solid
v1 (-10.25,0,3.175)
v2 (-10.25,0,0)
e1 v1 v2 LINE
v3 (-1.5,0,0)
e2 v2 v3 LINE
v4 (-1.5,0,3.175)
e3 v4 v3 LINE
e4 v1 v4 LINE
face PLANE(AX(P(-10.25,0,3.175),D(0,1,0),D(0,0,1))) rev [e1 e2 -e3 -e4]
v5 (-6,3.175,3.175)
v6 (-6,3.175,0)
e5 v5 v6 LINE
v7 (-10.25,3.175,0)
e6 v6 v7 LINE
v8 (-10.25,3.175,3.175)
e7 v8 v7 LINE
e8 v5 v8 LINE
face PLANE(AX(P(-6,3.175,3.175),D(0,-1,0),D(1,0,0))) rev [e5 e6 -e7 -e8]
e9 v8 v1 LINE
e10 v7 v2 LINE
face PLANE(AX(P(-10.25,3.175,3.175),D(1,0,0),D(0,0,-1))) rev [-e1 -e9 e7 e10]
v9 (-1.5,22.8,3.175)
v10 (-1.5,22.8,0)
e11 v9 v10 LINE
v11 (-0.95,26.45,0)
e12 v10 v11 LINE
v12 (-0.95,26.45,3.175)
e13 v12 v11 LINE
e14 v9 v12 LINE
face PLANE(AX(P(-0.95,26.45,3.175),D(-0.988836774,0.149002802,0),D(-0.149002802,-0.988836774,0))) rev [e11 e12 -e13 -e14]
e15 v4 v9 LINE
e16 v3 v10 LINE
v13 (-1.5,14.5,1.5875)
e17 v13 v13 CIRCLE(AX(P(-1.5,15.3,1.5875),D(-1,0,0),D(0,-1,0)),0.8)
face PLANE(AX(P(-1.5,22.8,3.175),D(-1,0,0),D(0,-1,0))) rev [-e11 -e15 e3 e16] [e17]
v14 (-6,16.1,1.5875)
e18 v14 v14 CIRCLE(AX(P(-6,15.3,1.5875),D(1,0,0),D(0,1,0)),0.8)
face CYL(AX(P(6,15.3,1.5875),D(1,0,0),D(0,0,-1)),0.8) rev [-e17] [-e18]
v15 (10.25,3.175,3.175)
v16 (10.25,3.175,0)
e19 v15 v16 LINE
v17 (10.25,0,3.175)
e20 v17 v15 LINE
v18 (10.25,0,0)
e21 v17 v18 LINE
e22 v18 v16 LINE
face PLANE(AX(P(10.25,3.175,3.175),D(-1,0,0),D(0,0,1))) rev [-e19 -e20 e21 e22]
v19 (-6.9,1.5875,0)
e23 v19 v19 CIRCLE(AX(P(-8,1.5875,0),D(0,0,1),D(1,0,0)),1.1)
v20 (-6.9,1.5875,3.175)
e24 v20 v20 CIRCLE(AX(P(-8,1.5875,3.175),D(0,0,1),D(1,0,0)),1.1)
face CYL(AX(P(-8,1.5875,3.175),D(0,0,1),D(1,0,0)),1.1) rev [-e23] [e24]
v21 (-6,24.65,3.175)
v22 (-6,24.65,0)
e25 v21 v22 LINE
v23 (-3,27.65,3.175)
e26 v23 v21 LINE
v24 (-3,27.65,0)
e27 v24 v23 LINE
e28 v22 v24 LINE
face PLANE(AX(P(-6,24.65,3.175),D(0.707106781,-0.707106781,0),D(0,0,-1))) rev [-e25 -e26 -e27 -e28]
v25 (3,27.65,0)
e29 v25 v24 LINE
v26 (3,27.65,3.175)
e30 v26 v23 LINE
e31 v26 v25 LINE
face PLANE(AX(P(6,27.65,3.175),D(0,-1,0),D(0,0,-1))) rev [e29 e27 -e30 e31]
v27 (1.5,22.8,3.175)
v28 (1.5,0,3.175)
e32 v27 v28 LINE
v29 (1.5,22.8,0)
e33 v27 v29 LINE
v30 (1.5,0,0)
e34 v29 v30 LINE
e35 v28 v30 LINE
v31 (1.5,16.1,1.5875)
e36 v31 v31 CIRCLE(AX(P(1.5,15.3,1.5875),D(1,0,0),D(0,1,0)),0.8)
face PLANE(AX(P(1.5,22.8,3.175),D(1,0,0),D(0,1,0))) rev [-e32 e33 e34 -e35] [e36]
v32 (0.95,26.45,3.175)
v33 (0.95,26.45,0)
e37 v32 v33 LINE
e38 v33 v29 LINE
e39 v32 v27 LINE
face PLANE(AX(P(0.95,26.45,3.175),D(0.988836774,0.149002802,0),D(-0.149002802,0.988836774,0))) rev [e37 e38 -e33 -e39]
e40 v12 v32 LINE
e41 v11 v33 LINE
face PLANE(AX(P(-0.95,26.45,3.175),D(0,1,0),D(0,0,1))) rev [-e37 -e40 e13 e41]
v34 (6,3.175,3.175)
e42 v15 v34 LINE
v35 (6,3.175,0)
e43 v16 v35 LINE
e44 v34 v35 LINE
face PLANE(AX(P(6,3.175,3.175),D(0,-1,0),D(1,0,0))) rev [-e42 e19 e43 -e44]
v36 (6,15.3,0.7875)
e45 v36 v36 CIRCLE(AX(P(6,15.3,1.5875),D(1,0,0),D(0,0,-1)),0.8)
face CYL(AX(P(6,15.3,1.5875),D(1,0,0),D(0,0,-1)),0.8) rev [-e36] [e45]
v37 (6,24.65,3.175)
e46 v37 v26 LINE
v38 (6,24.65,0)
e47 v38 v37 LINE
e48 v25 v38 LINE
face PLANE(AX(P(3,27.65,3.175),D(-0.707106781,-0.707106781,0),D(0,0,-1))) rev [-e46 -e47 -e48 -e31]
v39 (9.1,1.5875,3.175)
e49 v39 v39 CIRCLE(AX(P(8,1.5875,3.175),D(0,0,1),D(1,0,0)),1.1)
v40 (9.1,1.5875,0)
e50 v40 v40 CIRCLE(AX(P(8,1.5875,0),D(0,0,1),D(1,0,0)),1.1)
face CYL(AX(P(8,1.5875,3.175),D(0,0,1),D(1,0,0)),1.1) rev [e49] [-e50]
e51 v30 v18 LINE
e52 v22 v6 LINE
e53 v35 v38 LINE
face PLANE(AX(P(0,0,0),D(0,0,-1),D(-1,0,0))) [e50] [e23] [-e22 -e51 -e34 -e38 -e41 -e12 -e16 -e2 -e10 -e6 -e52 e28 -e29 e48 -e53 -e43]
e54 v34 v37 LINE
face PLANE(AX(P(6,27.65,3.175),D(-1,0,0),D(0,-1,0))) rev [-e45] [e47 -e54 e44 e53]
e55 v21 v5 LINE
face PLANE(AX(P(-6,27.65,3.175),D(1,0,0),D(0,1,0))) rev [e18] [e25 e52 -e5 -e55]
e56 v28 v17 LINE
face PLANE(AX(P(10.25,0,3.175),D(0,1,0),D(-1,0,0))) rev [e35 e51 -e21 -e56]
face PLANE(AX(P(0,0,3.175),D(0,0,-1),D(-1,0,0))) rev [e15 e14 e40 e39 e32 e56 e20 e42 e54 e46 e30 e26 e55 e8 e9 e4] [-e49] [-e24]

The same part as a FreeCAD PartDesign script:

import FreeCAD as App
import Part
import Sketcher

V = App.Vector


def edges_at(feature, points):
    """Names of the edges that pass closest to the given points."""
    edges = feature.Shape.Edges
    near = lambda p: min(range(len(edges)), key=lambda i: edges[i].distToShape(Part.Vertex(*p))[0])
    return sorted({f"Edge{near(p) + 1}" for p in points})

doc = App.newDocument("Part")
body = doc.addObject("PartDesign::Body", "Body")

# Sketch on XY plane
sketch1 = body.newObject("Sketcher::SketchObject", "Sketch")
sketch1.AttachmentSupport = (doc.getObject("XY_Plane"), [""])
sketch1.MapMode = "FlatFace"
sketch1.addGeometry([
    Part.LineSegment(V(6, 27.65, 0), V(-6, 27.65, 0)),  # 0
    Part.LineSegment(V(-6, 27.65, 0), V(-6, 3.175, 0)),  # 1
    Part.LineSegment(V(-6, 3.175, 0), V(-10.25, 3.175, 0)),  # 2
    Part.LineSegment(V(-10.25, 3.175, 0), V(-10.25, 0, 0)),  # 3
    Part.LineSegment(V(-10.25, 0, 0), V(-1.5, 0, 0)),  # 4
    Part.LineSegment(V(-1.5, 0, 0), V(-1.5, 22.8, 0)),  # 5
    Part.LineSegment(V(-1.5, 22.8, 0), V(-0.95, 26.45, 0)),  # 6
    Part.LineSegment(V(-0.95, 26.45, 0), V(0.95, 26.45, 0)),  # 7
    Part.LineSegment(V(0.95, 26.45, 0), V(1.5, 22.8, 0)),  # 8
    Part.LineSegment(V(1.5, 22.8, 0), V(1.5, 0, 0)),  # 9
    Part.LineSegment(V(1.5, 0, 0), V(10.25, 0, 0)),  # 10
    Part.LineSegment(V(10.25, 0, 0), V(10.25, 3.175, 0)),  # 11
    Part.LineSegment(V(10.25, 3.175, 0), V(6, 3.175, 0)),  # 12
    Part.LineSegment(V(6, 3.175, 0), V(6, 27.65, 0)),  # 13
], False)
sketch1.addConstraint([
    Sketcher.Constraint("Coincident", 0, 2, 1, 1),
    Sketcher.Constraint("Coincident", 1, 2, 2, 1),
    Sketcher.Constraint("Coincident", 2, 2, 3, 1),
    Sketcher.Constraint("Coincident", 3, 2, 4, 1),
    Sketcher.Constraint("Coincident", 4, 2, 5, 1),
    Sketcher.Constraint("Coincident", 5, 2, 6, 1),
    Sketcher.Constraint("Coincident", 6, 2, 7, 1),
    Sketcher.Constraint("Coincident", 7, 2, 8, 1),
    Sketcher.Constraint("Coincident", 8, 2, 9, 1),
    Sketcher.Constraint("Coincident", 9, 2, 10, 1),
    Sketcher.Constraint("Coincident", 10, 2, 11, 1),
    Sketcher.Constraint("Coincident", 11, 2, 12, 1),
    Sketcher.Constraint("Coincident", 12, 2, 13, 1),
    Sketcher.Constraint("Coincident", 13, 2, 0, 1),
    Sketcher.Constraint("Horizontal", 0),
    Sketcher.Constraint("Vertical", 1),
    Sketcher.Constraint("Horizontal", 2),
    Sketcher.Constraint("Vertical", 3),
    Sketcher.Constraint("Horizontal", 4),
    Sketcher.Constraint("Vertical", 5),
    Sketcher.Constraint("Horizontal", 7),
    Sketcher.Constraint("Vertical", 9),
    Sketcher.Constraint("Horizontal", 10),
    Sketcher.Constraint("Vertical", 11),
    Sketcher.Constraint("Horizontal", 12),
    Sketcher.Constraint("Vertical", 13),
    Sketcher.Constraint("Symmetric", 4, 2, 9, 2, -1, 1),
    Sketcher.Constraint("Symmetric", 3, 2, 10, 2, -2),
    Sketcher.Constraint("Symmetric", 1, 2, 12, 2, -2),
    Sketcher.Constraint("Horizontal", 5, 2, 8, 2),
    Sketcher.Constraint("Equal", 6, 8),
    Sketcher.Constraint("DistanceX", 0, 2, 0, 1, 12.0),
    Sketcher.Constraint("DistanceX", 7, 1, 7, 2, 1.9),
    Sketcher.Constraint("DistanceY", 5, 1, 5, 2, 22.8),
    Sketcher.Constraint("DistanceX", 5, 2, 8, 2, 3.0),
    Sketcher.Constraint("DistanceX", 2, 2, 2, 1, 4.25),
    Sketcher.Constraint("DistanceY", 6, 2, 0, 2, 1.2),
    Sketcher.Constraint("DistanceY", 1, 2, 1, 1, 24.475),
    Sketcher.Constraint("DistanceY", 3, 2, 3, 1, 3.175),
])
pad1 = body.newObject("PartDesign::Pad", "Pad")
pad1.Profile = sketch1
pad1.Length = 3.175
doc.recompute()

chamfer = body.newObject("PartDesign::Chamfer", "Chamfer")
chamfer.Base = (pad1, edges_at(pad1, [(-6, 27.65, 1.587), (6, 27.65, 1.587)]))
chamfer.Size = 3

# Sketch on YZ plane
sketch2 = body.newObject("Sketcher::SketchObject", "Sketch001")
sketch2.AttachmentSupport = (doc.getObject("YZ_Plane"), [""])
sketch2.MapMode = "FlatFace"
sketch2.AttachmentOffset = App.Placement(V(0, 0, 6), App.Rotation())
sketch2.addGeometry(Part.Circle(V(15.3, 1.5875, 0), V(0, 0, 1), 0.8), False)
sketch2.addConstraint([
    Sketcher.Constraint("Diameter", 0, 1.6),
    Sketcher.Constraint("DistanceX", -1, 1, 0, 3, 15.3),
    Sketcher.Constraint("DistanceY", -1, 1, 0, 3, 1.5875),
])
doc.recompute()
hole = body.newObject("PartDesign::Hole", "Hole")
hole.Profile = sketch2
hole.ThreadType = "None"
hole.Diameter = 1.6
hole.DepthType = "ThroughAll"

# Sketch on XY plane
sketch3 = body.newObject("Sketcher::SketchObject", "Sketch002")
sketch3.AttachmentSupport = (doc.getObject("XY_Plane"), [""])
sketch3.MapMode = "FlatFace"
sketch3.AttachmentOffset = App.Placement(V(0, 0, 3.175), App.Rotation())
sketch3.addGeometry([
    Part.Circle(V(-8, 1.5875, 0), V(0, 0, 1), 1.1),
    Part.Circle(V(8, 1.5875, 0), V(0, 0, 1), 1.1),
], False)
sketch3.addConstraint([
    Sketcher.Constraint("Equal", 0, 1),
    Sketcher.Constraint("Symmetric", 0, 3, 1, 3, -2),
    Sketcher.Constraint("Diameter", 0, 2.2),
    Sketcher.Constraint("DistanceX", 0, 3, -1, 1, 8.0),
    Sketcher.Constraint("DistanceY", -1, 1, 0, 3, 1.5875),
])
doc.recompute()
hole2 = body.newObject("PartDesign::Hole", "Hole001")
hole2.Profile = sketch3
hole2.ThreadType = "None"
hole2.Diameter = 2.2
hole2.DepthType = "ThroughAll"

doc.recompute()
